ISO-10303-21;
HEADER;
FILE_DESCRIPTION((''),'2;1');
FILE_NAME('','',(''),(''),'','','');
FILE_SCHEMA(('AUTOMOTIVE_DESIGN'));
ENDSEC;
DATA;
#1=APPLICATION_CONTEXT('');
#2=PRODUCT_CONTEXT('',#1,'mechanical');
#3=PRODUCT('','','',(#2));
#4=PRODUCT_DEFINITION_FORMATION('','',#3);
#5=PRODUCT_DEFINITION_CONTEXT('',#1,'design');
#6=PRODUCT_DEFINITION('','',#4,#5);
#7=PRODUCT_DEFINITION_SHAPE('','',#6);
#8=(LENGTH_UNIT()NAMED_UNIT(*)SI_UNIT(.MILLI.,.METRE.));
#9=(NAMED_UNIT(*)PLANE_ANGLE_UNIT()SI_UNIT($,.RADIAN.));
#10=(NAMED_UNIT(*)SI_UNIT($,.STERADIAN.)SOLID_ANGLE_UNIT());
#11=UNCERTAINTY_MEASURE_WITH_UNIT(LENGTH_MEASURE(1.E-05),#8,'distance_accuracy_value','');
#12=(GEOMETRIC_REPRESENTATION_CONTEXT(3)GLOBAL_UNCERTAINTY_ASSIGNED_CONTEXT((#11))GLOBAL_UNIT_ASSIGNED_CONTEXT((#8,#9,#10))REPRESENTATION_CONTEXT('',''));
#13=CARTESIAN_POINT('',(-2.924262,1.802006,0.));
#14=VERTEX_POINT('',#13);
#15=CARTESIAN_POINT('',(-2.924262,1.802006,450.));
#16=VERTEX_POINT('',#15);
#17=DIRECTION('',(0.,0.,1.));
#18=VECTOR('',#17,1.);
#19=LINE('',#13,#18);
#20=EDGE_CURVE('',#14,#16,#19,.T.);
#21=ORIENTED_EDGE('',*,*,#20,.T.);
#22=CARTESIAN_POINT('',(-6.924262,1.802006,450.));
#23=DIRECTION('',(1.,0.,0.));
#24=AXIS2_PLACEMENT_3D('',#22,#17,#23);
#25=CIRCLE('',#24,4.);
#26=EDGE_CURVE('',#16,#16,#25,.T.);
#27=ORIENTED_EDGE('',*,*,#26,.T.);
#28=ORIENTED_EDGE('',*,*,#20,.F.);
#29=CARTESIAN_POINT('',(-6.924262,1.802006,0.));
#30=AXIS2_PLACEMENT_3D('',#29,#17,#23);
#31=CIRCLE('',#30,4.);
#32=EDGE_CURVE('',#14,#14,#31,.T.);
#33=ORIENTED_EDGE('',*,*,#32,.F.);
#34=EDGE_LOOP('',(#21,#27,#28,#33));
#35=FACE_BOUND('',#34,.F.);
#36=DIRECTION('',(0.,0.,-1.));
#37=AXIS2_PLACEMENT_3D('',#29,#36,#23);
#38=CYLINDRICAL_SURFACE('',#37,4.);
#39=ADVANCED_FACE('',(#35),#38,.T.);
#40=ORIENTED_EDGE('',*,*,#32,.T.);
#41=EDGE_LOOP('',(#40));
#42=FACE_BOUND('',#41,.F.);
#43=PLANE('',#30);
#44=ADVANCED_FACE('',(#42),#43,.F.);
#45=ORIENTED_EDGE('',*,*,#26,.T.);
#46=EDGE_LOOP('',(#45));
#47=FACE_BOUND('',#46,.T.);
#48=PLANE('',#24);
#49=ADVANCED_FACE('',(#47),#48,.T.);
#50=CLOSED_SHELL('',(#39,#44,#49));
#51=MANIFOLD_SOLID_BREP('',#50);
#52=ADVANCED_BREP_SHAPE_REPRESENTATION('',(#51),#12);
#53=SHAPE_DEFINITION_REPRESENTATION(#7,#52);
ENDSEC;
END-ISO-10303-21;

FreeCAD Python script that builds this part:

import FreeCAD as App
import Part
import Sketcher
from FreeCAD import Vector

doc = App.newDocument("Part")
params = doc.addObject("Spreadsheet::Sheet", "Params")
for row, (alias, value) in enumerate([
    ("sketch1_diameter", "8 mm"),
    ("pad1_length", "450 mm"),
], start=1):
    params.set(f"A{row}", alias)
    params.set(f"B{row}", "=" + value)
    params.setAlias(f"B{row}", alias)

body = doc.addObject("PartDesign::Body", "Body")

# Sketch on XY plane
sketch1 = body.newObject("Sketcher::SketchObject", "Sketch")
sketch1.AttachmentSupport = (doc.getObject("XY_Plane"), [""])
sketch1.MapMode = "FlatFace"
sketch1.addGeometry(Part.Circle(Vector(-6.924262, 1.802006, 0), Vector(0, 0, 1), 4), False)
sketch1.addConstraint([
    Sketcher.Constraint("Diameter", 0, 8.0),
    Sketcher.Constraint("DistanceX", 0, 3, -1, 1, 6.924262),
    Sketcher.Constraint("DistanceY", -1, 1, 0, 3, 1.802006),
])
sketch1.setExpression("Constraints[0]", "Params.sketch1_diameter")
pad1 = body.newObject("PartDesign::Pad", "Pad")
pad1.Profile = sketch1
pad1.setExpression("Length", "Params.pad1_length")

doc.recompute()
